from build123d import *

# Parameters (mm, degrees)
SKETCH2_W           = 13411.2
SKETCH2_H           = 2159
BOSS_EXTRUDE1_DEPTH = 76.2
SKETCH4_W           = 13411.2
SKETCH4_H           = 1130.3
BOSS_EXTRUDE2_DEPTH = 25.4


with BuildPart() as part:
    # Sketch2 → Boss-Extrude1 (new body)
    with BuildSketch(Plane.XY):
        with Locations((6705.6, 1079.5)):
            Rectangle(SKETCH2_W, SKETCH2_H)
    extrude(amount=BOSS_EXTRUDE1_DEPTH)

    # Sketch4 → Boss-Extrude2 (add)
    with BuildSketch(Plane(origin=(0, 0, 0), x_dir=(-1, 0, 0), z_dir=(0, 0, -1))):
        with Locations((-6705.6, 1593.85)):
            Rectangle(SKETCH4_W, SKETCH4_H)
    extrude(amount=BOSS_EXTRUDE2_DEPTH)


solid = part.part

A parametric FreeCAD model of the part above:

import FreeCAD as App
import Part
import Sketcher

V = App.Vector
Q = App.Units.Quantity


def add_polygon(sketch, points):
    """Adds a closed chain of lines whose ends are joined by coincident constraints."""
    first, n = sketch.GeometryCount, len(points)
    for a, b in zip(points, points[1:] + points[:1]):
        sketch.addGeometry(Part.LineSegment(App.Vector(*a, 0), App.Vector(*b, 0)), False)
    for i in range(n):
        sketch.addConstraint(Sketcher.Constraint("Coincident", first + i, 2, first + (i + 1) % n, 1))

doc = App.newDocument("Part")
body = doc.addObject("PartDesign::Body", "Body")

sketch1 = body.newObject("Sketcher::SketchObject", "Sketch")
sketch1.AttachmentSupport = (doc.getObject("XY_Plane"), [""])
sketch1.MapMode = "FlatFace"
add_polygon(sketch1, [(0, 2159), (0, 0), (13411, 0), (13411, 2159)])
sketch1.addConstraint([
    Sketcher.Constraint("Vertical", 0),
    Sketcher.Constraint("Horizontal", 1),
    Sketcher.Constraint("Vertical", 2),
    Sketcher.Constraint("Horizontal", 3),
    Sketcher.Constraint("Coincident", 0, 2, -1, 1),
    Sketcher.Constraint("DistanceX", 1, 1, 1, 2, Q("528 in")),
    Sketcher.Constraint("DistanceY", 0, 2, 0, 1, Q("85 in")),
])
pad1 = body.newObject("PartDesign::Pad", "Pad")
pad1.Profile = sketch1
pad1.Length = Q("3 in")

sketch2 = body.newObject("Sketcher::SketchObject", "Sketch001")
sketch2.AttachmentSupport = (doc.getObject("XY_Plane"), [""])
sketch2.MapMode = "FlatFace"
add_polygon(sketch2, [(13411, 2159), (13411, 1029), (0, 1029), (0, 2159)])
sketch2.addConstraint([
    Sketcher.Constraint("Vertical", 0),
    Sketcher.Constraint("Horizontal", 1),
    Sketcher.Constraint("Vertical", 2),
    Sketcher.Constraint("Horizontal", 3),
    Sketcher.Constraint("PointOnObject", 1, 2, -2),
    Sketcher.Constraint("DistanceX", 1, 2, 1, 1, Q("528 in")),
    Sketcher.Constraint("DistanceY", 0, 2, 0, 1, Q("44.5 in")),
    Sketcher.Constraint("DistanceY", -1, 1, 2, 2, Q("85 in")),
])
pad2 = body.newObject("PartDesign::Pad", "Pad001")
pad2.Profile = sketch2
pad2.Length = Q("1 in")
pad2.Reversed = True

doc.recompute()
